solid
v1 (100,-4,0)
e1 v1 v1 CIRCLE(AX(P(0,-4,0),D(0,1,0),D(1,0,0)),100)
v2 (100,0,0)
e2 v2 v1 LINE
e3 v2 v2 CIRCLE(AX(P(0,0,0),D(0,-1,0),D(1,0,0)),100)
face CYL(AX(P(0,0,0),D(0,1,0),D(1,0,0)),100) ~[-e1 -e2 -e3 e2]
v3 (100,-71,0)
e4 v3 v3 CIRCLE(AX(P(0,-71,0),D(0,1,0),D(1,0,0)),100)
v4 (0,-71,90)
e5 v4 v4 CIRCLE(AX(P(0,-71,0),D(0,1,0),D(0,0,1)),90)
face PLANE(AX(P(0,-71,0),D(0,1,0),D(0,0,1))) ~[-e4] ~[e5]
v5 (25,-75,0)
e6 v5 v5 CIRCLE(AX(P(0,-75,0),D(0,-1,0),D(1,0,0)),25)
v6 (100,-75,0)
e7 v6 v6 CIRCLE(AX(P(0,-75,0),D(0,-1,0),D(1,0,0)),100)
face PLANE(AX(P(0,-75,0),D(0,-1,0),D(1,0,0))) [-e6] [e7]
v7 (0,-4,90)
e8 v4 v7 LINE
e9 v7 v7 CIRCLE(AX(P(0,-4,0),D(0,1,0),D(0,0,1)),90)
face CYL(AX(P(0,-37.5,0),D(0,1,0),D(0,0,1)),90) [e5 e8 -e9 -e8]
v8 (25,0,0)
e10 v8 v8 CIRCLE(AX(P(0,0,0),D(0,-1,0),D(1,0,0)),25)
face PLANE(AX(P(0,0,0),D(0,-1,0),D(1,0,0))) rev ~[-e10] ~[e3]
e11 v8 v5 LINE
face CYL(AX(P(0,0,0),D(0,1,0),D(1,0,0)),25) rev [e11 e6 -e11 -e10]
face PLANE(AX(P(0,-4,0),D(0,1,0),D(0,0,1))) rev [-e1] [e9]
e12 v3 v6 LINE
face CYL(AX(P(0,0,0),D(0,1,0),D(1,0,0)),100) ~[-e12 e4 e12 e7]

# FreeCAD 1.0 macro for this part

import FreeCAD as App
import Part
import Sketcher
Q = App.Units.Quantity


def add_polygon(sketch, points):
    """Adds a closed chain of lines whose ends are joined by coincident constraints."""
    first, n = sketch.GeometryCount, len(points)
    for a, b in zip(points, points[1:] + points[:1]):
        sketch.addGeometry(Part.LineSegment(App.Vector(*a, 0), App.Vector(*b, 0)), False)
    for i in range(n):
        sketch.addConstraint(Sketcher.Constraint("Coincident", first + i, 2, first + (i + 1) % n, 1))

doc = App.newDocument("Part")
body = doc.addObject("PartDesign::Body", "Body")

sketch1 = body.newObject("Sketcher::SketchObject", "Sketch")
sketch1.AttachmentSupport = (doc.getObject("XZ_Plane"), [""])
sketch1.MapMode = "FlatFace"
sketch1.addGeometry([
    Part.Circle(App.Vector(0, 0, 0), App.Vector(0, 0, 1), 100),
    Part.Circle(App.Vector(0, 0, 0), App.Vector(0, 0, 1), 25),
], False)
sketch1.addConstraint([
    Sketcher.Constraint("Coincident", 0, 3, -1, 1),
    Sketcher.Constraint("Coincident", 1, 3, -1, 1),
    Sketcher.Constraint("Diameter", 0, Q("200 mm")),
    Sketcher.Constraint("Diameter", 1, Q("50 mm")),
])
pad1 = body.newObject("PartDesign::Pad", "Pad")
pad1.Profile = sketch1
pad1.Length = 75

sketch2 = body.newObject("Sketcher::SketchObject", "Sketch001")
sketch2.AttachmentSupport = (doc.getObject("YZ_Plane"), [""])
sketch2.MapMode = "FlatFace"
add_polygon(sketch2, [(-71, 100), (-71, 90), (-4, 90), (-4, 100)])
sketch2.addConstraint([
    Sketcher.Constraint("Vertical", 0),
    Sketcher.Constraint("Horizontal", 1),
    Sketcher.Constraint("Vertical", 2),
    Sketcher.Constraint("Horizontal", 3),
    Sketcher.Constraint("DistanceX", 1, 1, 1, 2, Q("67 mm")),
    Sketcher.Constraint("DistanceY", 0, 2, 0, 1, Q("10 mm")),
    Sketcher.Constraint("DistanceX", 0, 2, -1, 1, Q("71 mm")),
    Sketcher.Constraint("DistanceY", -1, 1, 0, 2, Q("90 mm")),
])
groove = body.newObject("PartDesign::Groove", "Groove")
groove.Profile = sketch2
groove.ReferenceAxis = (sketch2, ["H_Axis"])
groove.Angle = 360

doc.recompute()
